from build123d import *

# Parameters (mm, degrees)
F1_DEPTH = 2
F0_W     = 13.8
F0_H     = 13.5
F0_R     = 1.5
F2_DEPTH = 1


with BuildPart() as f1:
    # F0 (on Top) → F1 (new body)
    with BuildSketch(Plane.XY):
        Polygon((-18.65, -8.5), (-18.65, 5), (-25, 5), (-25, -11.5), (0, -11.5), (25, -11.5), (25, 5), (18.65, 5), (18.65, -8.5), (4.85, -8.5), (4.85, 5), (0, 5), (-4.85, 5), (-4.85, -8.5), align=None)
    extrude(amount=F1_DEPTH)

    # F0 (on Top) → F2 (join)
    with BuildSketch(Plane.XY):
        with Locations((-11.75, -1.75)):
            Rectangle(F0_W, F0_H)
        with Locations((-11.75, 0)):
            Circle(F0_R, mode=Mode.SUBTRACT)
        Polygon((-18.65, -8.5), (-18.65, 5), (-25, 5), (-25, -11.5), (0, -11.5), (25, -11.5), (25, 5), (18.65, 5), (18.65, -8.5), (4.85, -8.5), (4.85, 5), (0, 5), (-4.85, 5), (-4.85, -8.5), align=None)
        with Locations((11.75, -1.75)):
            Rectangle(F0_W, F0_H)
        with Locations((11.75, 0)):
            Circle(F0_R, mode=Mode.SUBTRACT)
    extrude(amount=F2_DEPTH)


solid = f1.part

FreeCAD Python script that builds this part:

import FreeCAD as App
import Part
import Sketcher
Q = App.Units.Quantity

doc = App.newDocument("Part")
body = doc.addObject("PartDesign::Body", "Body")

sketch1 = body.newObject("Sketcher::SketchObject", "Sketch")
sketch1.AttachmentSupport = (doc.getObject("XY_Plane"), [""])
sketch1.MapMode = "FlatFace"
sketch1.addGeometry([
    Part.LineSegment(App.Vector(-19, -8, 0), App.Vector(-19, 5, 0)),
    Part.LineSegment(App.Vector(-19, 5, 0), App.Vector(-25, 5, 0)),
    Part.LineSegment(App.Vector(-25, 5, 0), App.Vector(-25, -12, 0)),
    Part.LineSegment(App.Vector(-25, -12, 0), App.Vector(25, -12, 0)),
    Part.LineSegment(App.Vector(25, -12, 0), App.Vector(25, 5, 0)),
    Part.LineSegment(App.Vector(25, 5, 0), App.Vector(19, 5, 0)),
    Part.LineSegment(App.Vector(19, 5, 0), App.Vector(19, -8, 0)),
    Part.LineSegment(App.Vector(19, -8, 0), App.Vector(5, -8, 0)),
    Part.LineSegment(App.Vector(5, -8, 0), App.Vector(5, 5, 0)),
    Part.LineSegment(App.Vector(5, 5, 0), App.Vector(-5, 5, 0)),
    Part.LineSegment(App.Vector(-5, 5, 0), App.Vector(-5, -8, 0)),
    Part.LineSegment(App.Vector(-5, -8, 0), App.Vector(-19, -8, 0)),
], False)
sketch1.addConstraint([
    Sketcher.Constraint("Coincident", 0, 2, 1, 1),
    Sketcher.Constraint("Coincident", 1, 2, 2, 1),
    Sketcher.Constraint("Coincident", 2, 2, 3, 1),
    Sketcher.Constraint("Coincident", 3, 2, 4, 1),
    Sketcher.Constraint("Coincident", 4, 2, 5, 1),
    Sketcher.Constraint("Coincident", 5, 2, 6, 1),
    Sketcher.Constraint("Coincident", 6, 2, 7, 1),
    Sketcher.Constraint("Coincident", 7, 2, 8, 1),
    Sketcher.Constraint("Coincident", 8, 2, 9, 1),
    Sketcher.Constraint("Coincident", 9, 2, 10, 1),
    Sketcher.Constraint("Coincident", 10, 2, 11, 1),
    Sketcher.Constraint("Coincident", 11, 2, 0, 1),
    Sketcher.Constraint("Vertical", 0),
    Sketcher.Constraint("Horizontal", 1),
    Sketcher.Constraint("Vertical", 2),
    Sketcher.Constraint("Horizontal", 3),
    Sketcher.Constraint("Vertical", 4),
    Sketcher.Constraint("Horizontal", 5),
    Sketcher.Constraint("Vertical", 6),
    Sketcher.Constraint("Horizontal", 7),
    Sketcher.Constraint("Vertical", 8),
    Sketcher.Constraint("Horizontal", 9),
    Sketcher.Constraint("Vertical", 10),
    Sketcher.Constraint("Horizontal", 11),
    Sketcher.Constraint("Symmetric", 1, 2, 4, 2, -2),
    Sketcher.Constraint("Symmetric", 7, 2, 10, 2, -2),
    Sketcher.Constraint("Horizontal", 5, 2, 8, 2),
    Sketcher.Constraint("Equal", 1, 5),
    Sketcher.Constraint("DistanceX", 3, 1, 3, 2, Q("50 mm")),
    Sketcher.Constraint("DistanceX", 7, 2, 7, 1, Q("13.8 mm")),
    Sketcher.Constraint("DistanceX", 9, 2, 9, 1, Q("9.7 mm")),
    Sketcher.Constraint("DistanceY", 0, 1, 0, 2, Q("13.5 mm")),
    Sketcher.Constraint("DistanceY", 2, 2, 2, 1, Q("16.5 mm")),
    Sketcher.Constraint("DistanceY", -1, 1, 0, 2, Q("5 mm")),
])
pad1 = body.newObject("PartDesign::Pad", "Pad")
pad1.Profile = sketch1
pad1.Length = 2

sketch2 = body.newObject("Sketcher::SketchObject", "Sketch001")
sketch2.AttachmentSupport = (doc.getObject("XY_Plane"), [""])
sketch2.MapMode = "FlatFace"
sketch2.addGeometry([
    Part.LineSegment(App.Vector(-25, 5, 0), App.Vector(-25, -11.5, 0)),
    Part.LineSegment(App.Vector(-25, -11.5, 0), App.Vector(25, -11.5, 0)),
    Part.LineSegment(App.Vector(25, -11.5, 0), App.Vector(25, 5, 0)),
    Part.LineSegment(App.Vector(25, 5, 0), App.Vector(-25, 5, 0)),
    Part.Circle(App.Vector(-11.8, 0, 0), App.Vector(0, 0, 1), 1.5),
    Part.Circle(App.Vector(11.8, 0, 0), App.Vector(0, 0, 1), 1.5),
], False)
sketch2.addConstraint([
    Sketcher.Constraint("Coincident", 0, 2, 1, 1),
    Sketcher.Constraint("Coincident", 1, 2, 2, 1),
    Sketcher.Constraint("Coincident", 2, 2, 3, 1),
    Sketcher.Constraint("Coincident", 3, 2, 0, 1),
    Sketcher.Constraint("Vertical", 0),
    Sketcher.Constraint("Horizontal", 1),
    Sketcher.Constraint("Vertical", 2),
    Sketcher.Constraint("Horizontal", 3),
    Sketcher.Constraint("Equal", 4, 5),
    Sketcher.Constraint("Symmetric", 4, 3, 5, 3, -1, 1),
    Sketcher.Constraint("PointOnObject", 4, 3, -1),
    Sketcher.Constraint("Diameter", 4, Q("3 mm")),
    Sketcher.Constraint("DistanceX", 1, 1, 1, 2, Q("50 mm")),
    Sketcher.Constraint("DistanceY", 0, 2, 0, 1, Q("16.5 mm")),
    Sketcher.Constraint("DistanceX", 0, 2, -1, 1, Q("25 mm")),
    Sketcher.Constraint("DistanceY", -1, 1, 2, 2, Q("5 mm")),
    Sketcher.Constraint("DistanceX", 4, 3, 5, 3, Q("23.5 mm")),
])
pad2 = body.newObject("PartDesign::Pad", "Pad001")
pad2.Profile = sketch2
pad2.Length = 1

doc.recompute()
